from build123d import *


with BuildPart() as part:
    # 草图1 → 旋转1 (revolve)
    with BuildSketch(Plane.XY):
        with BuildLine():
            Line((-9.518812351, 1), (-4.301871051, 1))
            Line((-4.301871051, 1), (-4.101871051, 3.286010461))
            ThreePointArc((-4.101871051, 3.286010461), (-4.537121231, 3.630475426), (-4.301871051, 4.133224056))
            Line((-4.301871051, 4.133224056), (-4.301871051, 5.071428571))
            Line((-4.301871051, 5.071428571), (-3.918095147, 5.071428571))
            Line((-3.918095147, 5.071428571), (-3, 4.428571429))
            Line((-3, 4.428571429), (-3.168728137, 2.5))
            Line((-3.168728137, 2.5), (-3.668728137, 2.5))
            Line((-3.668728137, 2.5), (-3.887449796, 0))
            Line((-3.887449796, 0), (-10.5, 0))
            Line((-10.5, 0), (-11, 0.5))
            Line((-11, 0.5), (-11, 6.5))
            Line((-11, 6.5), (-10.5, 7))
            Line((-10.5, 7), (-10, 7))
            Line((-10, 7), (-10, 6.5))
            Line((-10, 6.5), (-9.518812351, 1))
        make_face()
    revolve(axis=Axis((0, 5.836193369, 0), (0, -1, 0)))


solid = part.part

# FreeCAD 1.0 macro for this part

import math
import FreeCAD as App
import Part
import Sketcher

V = App.Vector
Q = App.Units.Quantity

doc = App.newDocument("Part")
body = doc.addObject("PartDesign::Body", "Body")

# Sketch on XY plane
sketch1 = body.newObject("Sketcher::SketchObject", "Sketch")
sketch1.AttachmentSupport = (doc.getObject("XY_Plane"), [""])
sketch1.MapMode = "FlatFace"
sketch1.addGeometry([
    Part.LineSegment(V(-4.3, 1, 0), V(-9.52, 1, 0)),  # 0
    Part.LineSegment(V(-9.52, 1, 0), V(-10, 6.5, 0)),  # 1
    Part.LineSegment(V(-10, 6.5, 0), V(-10, 7, 0)),  # 2
    Part.LineSegment(V(-10, 7, 0), V(-10.5, 7, 0)),  # 3
    Part.LineSegment(V(-10.5, 7, 0), V(-11, 6.5, 0)),  # 4
    Part.LineSegment(V(-11, 6.5, 0), V(-11, 0.5, 0)),  # 5
    Part.LineSegment(V(-11, 0.5, 0), V(-10.5, 0, 0)),  # 6
    Part.LineSegment(V(-10.5, 0, 0), V(-3.89, 0, 0)),  # 7
    Part.LineSegment(V(-3.89, 0, 0), V(-3.67, 2.5, 0)),  # 8
    Part.LineSegment(V(-3.67, 2.5, 0), V(-3.17, 2.5, 0)),  # 9
    Part.LineSegment(V(-3.17, 2.5, 0), V(-3, 4.43, 0)),  # 10
    Part.LineSegment(V(-3, 4.43, 0), V(-3.92, 5.07, 0)),  # 11
    Part.LineSegment(V(-3.92, 5.07, 0), V(-4.3, 5.07, 0)),  # 12
    Part.LineSegment(V(-4.3, 5.07, 0), V(-4.3, 4.13, 0)),  # 13
    Part.ArcOfCircle(Part.Circle(V(-4.1, 3.73, 0), V(0, 0, 1), 0.45), math.radians(117), math.radians(270)),  # 14
    Part.LineSegment(V(-4.1, 3.29, 0), V(-4.3, 1, 0)),  # 15
], False)
sketch1.addConstraint([
    Sketcher.Constraint("Coincident", 0, 2, 1, 1),
    Sketcher.Constraint("Coincident", 1, 2, 2, 1),
    Sketcher.Constraint("Coincident", 2, 2, 3, 1),
    Sketcher.Constraint("Coincident", 3, 2, 4, 1),
    Sketcher.Constraint("Coincident", 4, 2, 5, 1),
    Sketcher.Constraint("Coincident", 5, 2, 6, 1),
    Sketcher.Constraint("Coincident", 6, 2, 7, 1),
    Sketcher.Constraint("Coincident", 7, 2, 8, 1),
    Sketcher.Constraint("Coincident", 8, 2, 9, 1),
    Sketcher.Constraint("Coincident", 9, 2, 10, 1),
    Sketcher.Constraint("Coincident", 10, 2, 11, 1),
    Sketcher.Constraint("Coincident", 11, 2, 12, 1),
    Sketcher.Constraint("Coincident", 12, 2, 13, 1),
    Sketcher.Constraint("Coincident", 13, 2, 14, 1),
    Sketcher.Constraint("Coincident", 14, 2, 15, 1),
    Sketcher.Constraint("Coincident", 15, 2, 0, 1),
    Sketcher.Constraint("Horizontal", 0),
    Sketcher.Constraint("Vertical", 2),
    Sketcher.Constraint("Horizontal", 3),
    Sketcher.Constraint("Vertical", 5),
    Sketcher.Constraint("Horizontal", 7),
    Sketcher.Constraint("Horizontal", 9),
    Sketcher.Constraint("Horizontal", 12),
    Sketcher.Constraint("Vertical", 13),
    Sketcher.Constraint("PointOnObject", 6, 2, -1),
    Sketcher.Constraint("Perpendicular", 4, 6),
    Sketcher.Constraint("Parallel", 8, 10),
    Sketcher.Constraint("Parallel", 10, 15),
    Sketcher.Constraint("Horizontal", 1, 2, 4, 2),
    Sketcher.Constraint("Vertical", 3, 2, 6, 2),
    Sketcher.Constraint("Vertical", 13, 2, 15, 2),
    Sketcher.Constraint("Equal", 3, 9),
    Sketcher.Constraint("Equal", 9, 2),
    Sketcher.Constraint("Equal", 4, 6),
    Sketcher.Constraint("DistanceY", 5, 2, 5, 1, 6.0),
    Sketcher.Constraint("Angle", 1, Q("95 deg")),
    Sketcher.Constraint("Angle", 8, Q("85 deg")),
    Sketcher.Constraint("Angle", 11, Q("145 deg")),
    Sketcher.Constraint("DistanceX", 3, 2, 3, 1, 0.5),
    Sketcher.Constraint("DistanceY", -1, 1, 0, 2, 1.0),
    Sketcher.Constraint("DistanceX", 1, 2, -1, 1, 10.0),
    Sketcher.Constraint("DistanceX", 10, 2, -1, 1, 3.0),
    Sketcher.Constraint("DistanceY", 8, 2, 1, 2, 4.0),
    Sketcher.Constraint("DistanceX", 12, 2, 14, 3, 0.2),
    Sketcher.Constraint("DistanceY", 14, 3, 13, 2, 0.4),
    Sketcher.Constraint("DistanceX", 13, 2, 14, 2, 0.2),
    Sketcher.Constraint("DistanceX", 0, 2, 0, 1, 5.216941),
    Sketcher.Constraint("DistanceX", 7, 1, 7, 2, 6.61255),
    Sketcher.Constraint("DistanceX", 12, 2, 12, 1, 0.383776),
])
revolution = body.newObject("PartDesign::Revolution", "Revolution")
revolution.Profile = sketch1
revolution.ReferenceAxis = (sketch1, ["V_Axis"])
revolution.Angle = 360

doc.recompute()
